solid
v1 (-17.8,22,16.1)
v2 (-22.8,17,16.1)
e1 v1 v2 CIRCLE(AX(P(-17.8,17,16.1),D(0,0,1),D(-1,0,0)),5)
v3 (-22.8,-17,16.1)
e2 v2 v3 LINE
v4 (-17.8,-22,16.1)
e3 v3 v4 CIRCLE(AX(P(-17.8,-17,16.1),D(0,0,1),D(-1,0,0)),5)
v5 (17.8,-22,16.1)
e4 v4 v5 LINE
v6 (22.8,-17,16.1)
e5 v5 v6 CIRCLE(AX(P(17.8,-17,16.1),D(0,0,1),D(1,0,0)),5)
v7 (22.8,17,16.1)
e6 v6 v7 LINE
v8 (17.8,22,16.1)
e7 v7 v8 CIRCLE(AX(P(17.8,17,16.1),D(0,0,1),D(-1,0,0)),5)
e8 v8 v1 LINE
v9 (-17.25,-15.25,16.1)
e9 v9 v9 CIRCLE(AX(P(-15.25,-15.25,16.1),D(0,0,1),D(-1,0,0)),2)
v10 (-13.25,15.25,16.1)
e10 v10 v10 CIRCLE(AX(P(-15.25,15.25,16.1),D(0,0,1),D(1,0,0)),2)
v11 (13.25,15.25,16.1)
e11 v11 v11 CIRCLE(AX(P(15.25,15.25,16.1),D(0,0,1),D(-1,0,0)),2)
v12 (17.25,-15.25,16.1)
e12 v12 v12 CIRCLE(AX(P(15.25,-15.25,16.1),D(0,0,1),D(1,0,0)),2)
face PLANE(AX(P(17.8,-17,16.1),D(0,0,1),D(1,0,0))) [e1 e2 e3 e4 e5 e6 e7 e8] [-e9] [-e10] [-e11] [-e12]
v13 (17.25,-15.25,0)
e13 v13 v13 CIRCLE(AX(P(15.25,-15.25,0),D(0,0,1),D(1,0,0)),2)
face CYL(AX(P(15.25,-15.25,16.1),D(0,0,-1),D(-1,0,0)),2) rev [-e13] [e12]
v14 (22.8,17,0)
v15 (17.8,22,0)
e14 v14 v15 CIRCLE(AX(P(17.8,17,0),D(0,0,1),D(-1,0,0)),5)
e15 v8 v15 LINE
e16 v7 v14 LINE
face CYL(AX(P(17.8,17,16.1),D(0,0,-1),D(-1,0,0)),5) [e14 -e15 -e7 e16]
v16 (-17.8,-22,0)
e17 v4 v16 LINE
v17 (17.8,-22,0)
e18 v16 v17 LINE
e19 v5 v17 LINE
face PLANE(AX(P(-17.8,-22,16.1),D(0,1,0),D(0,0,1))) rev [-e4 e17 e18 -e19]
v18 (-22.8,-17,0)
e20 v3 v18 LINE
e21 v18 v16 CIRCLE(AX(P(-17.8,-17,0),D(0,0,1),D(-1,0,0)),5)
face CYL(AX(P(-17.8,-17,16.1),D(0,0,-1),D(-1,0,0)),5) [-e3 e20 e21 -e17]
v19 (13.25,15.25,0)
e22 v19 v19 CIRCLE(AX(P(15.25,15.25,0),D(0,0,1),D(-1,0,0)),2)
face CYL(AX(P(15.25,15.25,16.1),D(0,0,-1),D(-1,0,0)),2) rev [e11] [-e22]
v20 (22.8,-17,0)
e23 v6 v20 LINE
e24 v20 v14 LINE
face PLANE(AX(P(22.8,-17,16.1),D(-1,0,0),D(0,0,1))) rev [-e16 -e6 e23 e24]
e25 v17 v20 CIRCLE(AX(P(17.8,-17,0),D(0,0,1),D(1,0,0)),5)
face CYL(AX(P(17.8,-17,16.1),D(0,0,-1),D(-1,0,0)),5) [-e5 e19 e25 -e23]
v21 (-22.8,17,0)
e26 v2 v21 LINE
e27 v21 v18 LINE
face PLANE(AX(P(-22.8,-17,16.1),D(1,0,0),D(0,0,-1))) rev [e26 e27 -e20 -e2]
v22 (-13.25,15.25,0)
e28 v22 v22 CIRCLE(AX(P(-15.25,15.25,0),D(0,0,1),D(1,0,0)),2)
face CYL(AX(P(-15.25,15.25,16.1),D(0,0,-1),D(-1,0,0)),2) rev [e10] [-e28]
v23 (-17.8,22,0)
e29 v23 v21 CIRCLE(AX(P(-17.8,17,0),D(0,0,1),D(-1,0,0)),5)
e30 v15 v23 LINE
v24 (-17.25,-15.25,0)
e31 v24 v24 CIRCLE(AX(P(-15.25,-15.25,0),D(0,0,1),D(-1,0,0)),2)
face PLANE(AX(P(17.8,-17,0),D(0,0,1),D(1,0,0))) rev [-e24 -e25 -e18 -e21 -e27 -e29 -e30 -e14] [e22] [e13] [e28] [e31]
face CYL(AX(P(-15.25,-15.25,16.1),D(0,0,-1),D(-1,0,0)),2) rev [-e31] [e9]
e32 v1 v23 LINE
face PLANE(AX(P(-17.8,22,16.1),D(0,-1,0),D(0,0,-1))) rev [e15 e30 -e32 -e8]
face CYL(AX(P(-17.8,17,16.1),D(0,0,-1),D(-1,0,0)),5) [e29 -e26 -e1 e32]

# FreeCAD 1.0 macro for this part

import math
import FreeCAD as App
import Part
import Sketcher
from FreeCAD import Vector
Q = App.Units.Quantity

doc = App.newDocument("Part")
body = doc.addObject("PartDesign::Body", "Body")

# Sketch on XY plane
sketch1 = body.newObject("Sketcher::SketchObject", "Sketch")
sketch1.AttachmentSupport = (doc.getObject("XY_Plane"), [""])
sketch1.MapMode = "FlatFace"
sketch1.addGeometry(Part.LineSegment(Vector(-17.8, -22, 0), Vector(17.8, -22, 0)), False)
sketch1.addGeometry(Part.ArcOfCircle(Part.Circle(Vector(17.8, -17, 0), Vector(0, 0, 1), 5), math.radians(-90), math.radians(0)), False)
sketch1.addGeometry(Part.LineSegment(Vector(22.8, -17, 0), Vector(22.8, 17, 0)), False)
sketch1.addGeometry(Part.ArcOfCircle(Part.Circle(Vector(17.8, 17, 0), Vector(0, 0, 1), 5), math.radians(0), math.radians(90)), False)
sketch1.addGeometry(Part.LineSegment(Vector(17.8, 22, 0), Vector(-17.8, 22, 0)), False)
sketch1.addGeometry(Part.ArcOfCircle(Part.Circle(Vector(-17.8, 17, 0), Vector(0, 0, 1), 5), math.radians(90), math.radians(180)), False)
sketch1.addGeometry(Part.LineSegment(Vector(-22.8, 17, 0), Vector(-22.8, -17, 0)), False)
sketch1.addGeometry(Part.ArcOfCircle(Part.Circle(Vector(-17.8, -17, 0), Vector(0, 0, 1), 5), math.radians(180), math.radians(270)), False)
sketch1.addGeometry(Part.Circle(Vector(-15.2, -15.2, 0), Vector(0, 0, 1), 2), False)
sketch1.addGeometry(Part.Circle(Vector(15.2, -15.2, 0), Vector(0, 0, 1), 2), False)
sketch1.addGeometry(Part.Circle(Vector(-15.2, 15.2, 0), Vector(0, 0, 1), 2), False)
sketch1.addGeometry(Part.Circle(Vector(15.2, 15.2, 0), Vector(0, 0, 1), 2), False)
sketch1.addConstraint(Sketcher.Constraint("Tangent", 0, 2, 1, 1))
sketch1.addConstraint(Sketcher.Constraint("Tangent", 1, 2, 2, 1))
sketch1.addConstraint(Sketcher.Constraint("Tangent", 2, 2, 3, 1))
sketch1.addConstraint(Sketcher.Constraint("Tangent", 3, 2, 4, 1))
sketch1.addConstraint(Sketcher.Constraint("Tangent", 4, 2, 5, 1))
sketch1.addConstraint(Sketcher.Constraint("Tangent", 5, 2, 6, 1))
sketch1.addConstraint(Sketcher.Constraint("Tangent", 6, 2, 7, 1))
sketch1.addConstraint(Sketcher.Constraint("Tangent", 7, 2, 0, 1))
sketch1.addConstraint(Sketcher.Constraint("Horizontal", 0))
sketch1.addConstraint(Sketcher.Constraint("Vertical", 2))
sketch1.addConstraint(Sketcher.Constraint("Horizontal", 4))
sketch1.addConstraint(Sketcher.Constraint("Vertical", 6))
sketch1.addConstraint(Sketcher.Constraint("Equal", 1, 3))
sketch1.addConstraint(Sketcher.Constraint("Equal", 3, 5))
sketch1.addConstraint(Sketcher.Constraint("Equal", 5, 7))
sketch1.addConstraint(Sketcher.Constraint("Equal", 8, 9))
sketch1.addConstraint(Sketcher.Constraint("Equal", 9, 10))
sketch1.addConstraint(Sketcher.Constraint("Equal", 10, 11))
sketch1.addConstraint(Sketcher.Constraint("Symmetric", 1, 3, 5, 3, -1, 1))
sketch1.addConstraint(Sketcher.Constraint("Symmetric", 9, 3, 10, 3, -1, 1))
sketch1.addConstraint(Sketcher.Constraint("Symmetric", 8, 3, 11, 3, -1, 1))
sketch1.addConstraint(Sketcher.Constraint("Symmetric", 8, 3, 9, 3, -2))
sketch1.addConstraint(Sketcher.Constraint("Diameter", 8, Q("4 mm")))
sketch1.addConstraint(Sketcher.Constraint("Radius", 1, Q("5 mm")))
sketch1.addConstraint(Sketcher.Constraint("DistanceY", 2, 1, 2, 2, Q("34 mm")))
sketch1.addConstraint(Sketcher.Constraint("DistanceX", 0, 1, 0, 2, Q("35.6 mm")))
sketch1.addConstraint(Sketcher.Constraint("DistanceX", 8, 3, 9, 3, Q("30.5 mm")))
sketch1.addConstraint(Sketcher.Constraint("DistanceY", 8, 3, 10, 3, Q("30.5 mm")))
pad1 = body.newObject("PartDesign::Pad", "Pad")
pad1.Profile = sketch1
pad1.Length = 16.1

doc.recompute()
